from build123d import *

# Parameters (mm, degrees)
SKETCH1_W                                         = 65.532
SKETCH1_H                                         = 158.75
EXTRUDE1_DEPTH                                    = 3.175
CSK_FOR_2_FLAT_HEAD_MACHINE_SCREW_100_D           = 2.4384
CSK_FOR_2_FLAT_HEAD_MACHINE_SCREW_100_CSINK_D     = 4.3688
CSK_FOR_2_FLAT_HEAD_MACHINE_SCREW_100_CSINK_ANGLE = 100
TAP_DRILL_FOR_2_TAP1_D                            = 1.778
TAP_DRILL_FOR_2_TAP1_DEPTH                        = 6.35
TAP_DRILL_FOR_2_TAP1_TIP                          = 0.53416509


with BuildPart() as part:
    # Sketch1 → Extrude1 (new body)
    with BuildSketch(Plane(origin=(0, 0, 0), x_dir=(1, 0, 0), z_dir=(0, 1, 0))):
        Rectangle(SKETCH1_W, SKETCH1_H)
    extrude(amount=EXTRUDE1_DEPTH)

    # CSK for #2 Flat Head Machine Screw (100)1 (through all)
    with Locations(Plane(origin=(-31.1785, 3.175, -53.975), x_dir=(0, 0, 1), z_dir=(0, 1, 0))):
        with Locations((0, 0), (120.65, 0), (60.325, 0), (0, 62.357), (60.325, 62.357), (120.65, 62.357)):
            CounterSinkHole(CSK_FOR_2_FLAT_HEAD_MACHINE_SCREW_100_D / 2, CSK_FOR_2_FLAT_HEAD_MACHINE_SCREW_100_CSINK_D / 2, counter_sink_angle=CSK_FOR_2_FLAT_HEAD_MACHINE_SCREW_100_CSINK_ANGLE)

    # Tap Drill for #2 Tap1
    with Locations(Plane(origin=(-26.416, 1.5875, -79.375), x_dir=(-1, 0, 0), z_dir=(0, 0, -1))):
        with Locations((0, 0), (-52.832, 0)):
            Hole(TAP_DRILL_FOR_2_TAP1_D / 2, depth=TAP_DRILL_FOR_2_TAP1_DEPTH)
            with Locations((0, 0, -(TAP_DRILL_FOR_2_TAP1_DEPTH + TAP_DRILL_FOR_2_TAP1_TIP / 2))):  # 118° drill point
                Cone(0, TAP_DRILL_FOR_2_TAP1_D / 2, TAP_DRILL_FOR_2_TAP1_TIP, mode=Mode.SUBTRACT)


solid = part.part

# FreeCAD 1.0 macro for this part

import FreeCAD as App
import Part
import Sketcher

V = App.Vector
Q = App.Units.Quantity


def add_polygon(sketch, points):
    """Adds a closed chain of lines whose ends are joined by coincident constraints."""
    first, n = sketch.GeometryCount, len(points)
    for a, b in zip(points, points[1:] + points[:1]):
        sketch.addGeometry(Part.LineSegment(App.Vector(*a, 0), App.Vector(*b, 0)), False)
    for i in range(n):
        sketch.addConstraint(Sketcher.Constraint("Coincident", first + i, 2, first + (i + 1) % n, 1))

doc = App.newDocument("Part")
body = doc.addObject("PartDesign::Body", "Body")

# Sketch on XZ plane
sketch1 = body.newObject("Sketcher::SketchObject", "Sketch")
sketch1.AttachmentSupport = (doc.getObject("XZ_Plane"), [""])
sketch1.MapMode = "FlatFace"
add_polygon(sketch1, [(-33, -79), (-33, 79), (33, 79), (33, -79)])  # lines 0-3
sketch1.addConstraint(Sketcher.Constraint("Vertical", 0))
sketch1.addConstraint(Sketcher.Constraint("Horizontal", 1))
sketch1.addConstraint(Sketcher.Constraint("Vertical", 2))
sketch1.addConstraint(Sketcher.Constraint("Horizontal", 3))
sketch1.addConstraint(Sketcher.Constraint("Symmetric", 0, 2, 2, 2, -1, 1))
sketch1.addConstraint(Sketcher.Constraint("DistanceX", 1, 1, 1, 2, Q("2.58 in")))
sketch1.addConstraint(Sketcher.Constraint("DistanceY", 0, 1, 0, 2, Q("6.25 in")))
pad1 = body.newObject("PartDesign::Pad", "Pad")
pad1.Profile = sketch1
pad1.Length = Q("0.125 in")
pad1.Reversed = True

# Sketch on XZ plane
sketch2 = body.newObject("Sketcher::SketchObject", "Sketch001")
sketch2.AttachmentSupport = (doc.getObject("XZ_Plane"), [""])
sketch2.MapMode = "FlatFace"
sketch2.AttachmentOffset = App.Placement(V(0, 0, -0.125 * 25.4), App.Rotation())
sketch2.addGeometry(Part.Circle(V(-31.2, -54, 0), V(0, 0, 1), 1.2), False)
sketch2.addGeometry(Part.Circle(V(-31.2, 66.7, 0), V(0, 0, 1), 1.2), False)
sketch2.addGeometry(Part.Circle(V(-31.2, 6.3, 0), V(0, 0, 1), 1.2), False)
sketch2.addGeometry(Part.Circle(V(31.2, -54, 0), V(0, 0, 1), 1.2), False)
sketch2.addGeometry(Part.Circle(V(31.2, 6.3, 0), V(0, 0, 1), 1.2), False)
sketch2.addGeometry(Part.Circle(V(31.2, 66.7, 0), V(0, 0, 1), 1.2), False)
sketch2.addConstraint(Sketcher.Constraint("Equal", 0, 1))
sketch2.addConstraint(Sketcher.Constraint("Equal", 1, 2))
sketch2.addConstraint(Sketcher.Constraint("Equal", 2, 3))
sketch2.addConstraint(Sketcher.Constraint("Equal", 3, 4))
sketch2.addConstraint(Sketcher.Constraint("Equal", 4, 5))
sketch2.addConstraint(Sketcher.Constraint("Symmetric", 0, 3, 3, 3, -2))
sketch2.addConstraint(Sketcher.Constraint("Symmetric", 2, 3, 4, 3, -2))
sketch2.addConstraint(Sketcher.Constraint("Symmetric", 1, 3, 5, 3, -2))
sketch2.addConstraint(Sketcher.Constraint("Vertical", 0, 3, 1, 3))
sketch2.addConstraint(Sketcher.Constraint("Vertical", 1, 3, 2, 3))
sketch2.addConstraint(Sketcher.Constraint("Diameter", 0, Q("0.096 in")))
sketch2.addConstraint(Sketcher.Constraint("DistanceY", -1, 1, 2, 3, Q("0.25 in")))
sketch2.addConstraint(Sketcher.Constraint("DistanceY", 0, 3, 1, 3, Q("4.75 in")))
sketch2.addConstraint(Sketcher.Constraint("DistanceY", 0, 3, -1, 1, Q("2.125 in")))
sketch2.addConstraint(Sketcher.Constraint("DistanceX", 0, 3, 3, 3, Q("2.455 in")))
doc.recompute()
hole = body.newObject("PartDesign::Hole", "Hole")
hole.Profile = sketch2
hole.ThreadType = "None"
hole.Diameter = Q("0.096 in")
hole.DepthType = "ThroughAll"
hole.HoleCutType = "Countersink"
hole.HoleCutDiameter = Q("0.172 in")
hole.HoleCutCountersinkAngle = 100
hole.Reversed = True

# Sketch on XY plane
sketch3 = body.newObject("Sketcher::SketchObject", "Sketch002")
sketch3.AttachmentSupport = (doc.getObject("XY_Plane"), [""])
sketch3.MapMode = "FlatFace"
sketch3.AttachmentOffset = App.Placement(V(0, 0, -3.125 * 25.4), App.Rotation())
sketch3.addGeometry(Part.Circle(V(-26.4, 1.6, 0), V(0, 0, 1), 0.9), False)
sketch3.addGeometry(Part.Circle(V(26.4, 1.6, 0), V(0, 0, 1), 0.9), False)
sketch3.addConstraint(Sketcher.Constraint("Equal", 0, 1))
sketch3.addConstraint(Sketcher.Constraint("Symmetric", 0, 3, 1, 3, -2))
sketch3.addConstraint(Sketcher.Constraint("Diameter", 0, Q("0.07 in")))
sketch3.addConstraint(Sketcher.Constraint("DistanceX", 0, 3, -1, 1, Q("1.04 in")))
sketch3.addConstraint(Sketcher.Constraint("DistanceY", -1, 1, 0, 3, Q("0.0625 in")))
doc.recompute()
hole2 = body.newObject("PartDesign::Hole", "Hole001")
hole2.Profile = sketch3
hole2.ThreadType = "None"
hole2.Diameter = Q("0.07 in")
hole2.DepthType = "Dimension"
hole2.Depth = Q("0.25 in")
hole2.DrillPoint = "Angled"
hole2.DrillPointAngle = 118
hole2.Reversed = True

doc.recompute()
